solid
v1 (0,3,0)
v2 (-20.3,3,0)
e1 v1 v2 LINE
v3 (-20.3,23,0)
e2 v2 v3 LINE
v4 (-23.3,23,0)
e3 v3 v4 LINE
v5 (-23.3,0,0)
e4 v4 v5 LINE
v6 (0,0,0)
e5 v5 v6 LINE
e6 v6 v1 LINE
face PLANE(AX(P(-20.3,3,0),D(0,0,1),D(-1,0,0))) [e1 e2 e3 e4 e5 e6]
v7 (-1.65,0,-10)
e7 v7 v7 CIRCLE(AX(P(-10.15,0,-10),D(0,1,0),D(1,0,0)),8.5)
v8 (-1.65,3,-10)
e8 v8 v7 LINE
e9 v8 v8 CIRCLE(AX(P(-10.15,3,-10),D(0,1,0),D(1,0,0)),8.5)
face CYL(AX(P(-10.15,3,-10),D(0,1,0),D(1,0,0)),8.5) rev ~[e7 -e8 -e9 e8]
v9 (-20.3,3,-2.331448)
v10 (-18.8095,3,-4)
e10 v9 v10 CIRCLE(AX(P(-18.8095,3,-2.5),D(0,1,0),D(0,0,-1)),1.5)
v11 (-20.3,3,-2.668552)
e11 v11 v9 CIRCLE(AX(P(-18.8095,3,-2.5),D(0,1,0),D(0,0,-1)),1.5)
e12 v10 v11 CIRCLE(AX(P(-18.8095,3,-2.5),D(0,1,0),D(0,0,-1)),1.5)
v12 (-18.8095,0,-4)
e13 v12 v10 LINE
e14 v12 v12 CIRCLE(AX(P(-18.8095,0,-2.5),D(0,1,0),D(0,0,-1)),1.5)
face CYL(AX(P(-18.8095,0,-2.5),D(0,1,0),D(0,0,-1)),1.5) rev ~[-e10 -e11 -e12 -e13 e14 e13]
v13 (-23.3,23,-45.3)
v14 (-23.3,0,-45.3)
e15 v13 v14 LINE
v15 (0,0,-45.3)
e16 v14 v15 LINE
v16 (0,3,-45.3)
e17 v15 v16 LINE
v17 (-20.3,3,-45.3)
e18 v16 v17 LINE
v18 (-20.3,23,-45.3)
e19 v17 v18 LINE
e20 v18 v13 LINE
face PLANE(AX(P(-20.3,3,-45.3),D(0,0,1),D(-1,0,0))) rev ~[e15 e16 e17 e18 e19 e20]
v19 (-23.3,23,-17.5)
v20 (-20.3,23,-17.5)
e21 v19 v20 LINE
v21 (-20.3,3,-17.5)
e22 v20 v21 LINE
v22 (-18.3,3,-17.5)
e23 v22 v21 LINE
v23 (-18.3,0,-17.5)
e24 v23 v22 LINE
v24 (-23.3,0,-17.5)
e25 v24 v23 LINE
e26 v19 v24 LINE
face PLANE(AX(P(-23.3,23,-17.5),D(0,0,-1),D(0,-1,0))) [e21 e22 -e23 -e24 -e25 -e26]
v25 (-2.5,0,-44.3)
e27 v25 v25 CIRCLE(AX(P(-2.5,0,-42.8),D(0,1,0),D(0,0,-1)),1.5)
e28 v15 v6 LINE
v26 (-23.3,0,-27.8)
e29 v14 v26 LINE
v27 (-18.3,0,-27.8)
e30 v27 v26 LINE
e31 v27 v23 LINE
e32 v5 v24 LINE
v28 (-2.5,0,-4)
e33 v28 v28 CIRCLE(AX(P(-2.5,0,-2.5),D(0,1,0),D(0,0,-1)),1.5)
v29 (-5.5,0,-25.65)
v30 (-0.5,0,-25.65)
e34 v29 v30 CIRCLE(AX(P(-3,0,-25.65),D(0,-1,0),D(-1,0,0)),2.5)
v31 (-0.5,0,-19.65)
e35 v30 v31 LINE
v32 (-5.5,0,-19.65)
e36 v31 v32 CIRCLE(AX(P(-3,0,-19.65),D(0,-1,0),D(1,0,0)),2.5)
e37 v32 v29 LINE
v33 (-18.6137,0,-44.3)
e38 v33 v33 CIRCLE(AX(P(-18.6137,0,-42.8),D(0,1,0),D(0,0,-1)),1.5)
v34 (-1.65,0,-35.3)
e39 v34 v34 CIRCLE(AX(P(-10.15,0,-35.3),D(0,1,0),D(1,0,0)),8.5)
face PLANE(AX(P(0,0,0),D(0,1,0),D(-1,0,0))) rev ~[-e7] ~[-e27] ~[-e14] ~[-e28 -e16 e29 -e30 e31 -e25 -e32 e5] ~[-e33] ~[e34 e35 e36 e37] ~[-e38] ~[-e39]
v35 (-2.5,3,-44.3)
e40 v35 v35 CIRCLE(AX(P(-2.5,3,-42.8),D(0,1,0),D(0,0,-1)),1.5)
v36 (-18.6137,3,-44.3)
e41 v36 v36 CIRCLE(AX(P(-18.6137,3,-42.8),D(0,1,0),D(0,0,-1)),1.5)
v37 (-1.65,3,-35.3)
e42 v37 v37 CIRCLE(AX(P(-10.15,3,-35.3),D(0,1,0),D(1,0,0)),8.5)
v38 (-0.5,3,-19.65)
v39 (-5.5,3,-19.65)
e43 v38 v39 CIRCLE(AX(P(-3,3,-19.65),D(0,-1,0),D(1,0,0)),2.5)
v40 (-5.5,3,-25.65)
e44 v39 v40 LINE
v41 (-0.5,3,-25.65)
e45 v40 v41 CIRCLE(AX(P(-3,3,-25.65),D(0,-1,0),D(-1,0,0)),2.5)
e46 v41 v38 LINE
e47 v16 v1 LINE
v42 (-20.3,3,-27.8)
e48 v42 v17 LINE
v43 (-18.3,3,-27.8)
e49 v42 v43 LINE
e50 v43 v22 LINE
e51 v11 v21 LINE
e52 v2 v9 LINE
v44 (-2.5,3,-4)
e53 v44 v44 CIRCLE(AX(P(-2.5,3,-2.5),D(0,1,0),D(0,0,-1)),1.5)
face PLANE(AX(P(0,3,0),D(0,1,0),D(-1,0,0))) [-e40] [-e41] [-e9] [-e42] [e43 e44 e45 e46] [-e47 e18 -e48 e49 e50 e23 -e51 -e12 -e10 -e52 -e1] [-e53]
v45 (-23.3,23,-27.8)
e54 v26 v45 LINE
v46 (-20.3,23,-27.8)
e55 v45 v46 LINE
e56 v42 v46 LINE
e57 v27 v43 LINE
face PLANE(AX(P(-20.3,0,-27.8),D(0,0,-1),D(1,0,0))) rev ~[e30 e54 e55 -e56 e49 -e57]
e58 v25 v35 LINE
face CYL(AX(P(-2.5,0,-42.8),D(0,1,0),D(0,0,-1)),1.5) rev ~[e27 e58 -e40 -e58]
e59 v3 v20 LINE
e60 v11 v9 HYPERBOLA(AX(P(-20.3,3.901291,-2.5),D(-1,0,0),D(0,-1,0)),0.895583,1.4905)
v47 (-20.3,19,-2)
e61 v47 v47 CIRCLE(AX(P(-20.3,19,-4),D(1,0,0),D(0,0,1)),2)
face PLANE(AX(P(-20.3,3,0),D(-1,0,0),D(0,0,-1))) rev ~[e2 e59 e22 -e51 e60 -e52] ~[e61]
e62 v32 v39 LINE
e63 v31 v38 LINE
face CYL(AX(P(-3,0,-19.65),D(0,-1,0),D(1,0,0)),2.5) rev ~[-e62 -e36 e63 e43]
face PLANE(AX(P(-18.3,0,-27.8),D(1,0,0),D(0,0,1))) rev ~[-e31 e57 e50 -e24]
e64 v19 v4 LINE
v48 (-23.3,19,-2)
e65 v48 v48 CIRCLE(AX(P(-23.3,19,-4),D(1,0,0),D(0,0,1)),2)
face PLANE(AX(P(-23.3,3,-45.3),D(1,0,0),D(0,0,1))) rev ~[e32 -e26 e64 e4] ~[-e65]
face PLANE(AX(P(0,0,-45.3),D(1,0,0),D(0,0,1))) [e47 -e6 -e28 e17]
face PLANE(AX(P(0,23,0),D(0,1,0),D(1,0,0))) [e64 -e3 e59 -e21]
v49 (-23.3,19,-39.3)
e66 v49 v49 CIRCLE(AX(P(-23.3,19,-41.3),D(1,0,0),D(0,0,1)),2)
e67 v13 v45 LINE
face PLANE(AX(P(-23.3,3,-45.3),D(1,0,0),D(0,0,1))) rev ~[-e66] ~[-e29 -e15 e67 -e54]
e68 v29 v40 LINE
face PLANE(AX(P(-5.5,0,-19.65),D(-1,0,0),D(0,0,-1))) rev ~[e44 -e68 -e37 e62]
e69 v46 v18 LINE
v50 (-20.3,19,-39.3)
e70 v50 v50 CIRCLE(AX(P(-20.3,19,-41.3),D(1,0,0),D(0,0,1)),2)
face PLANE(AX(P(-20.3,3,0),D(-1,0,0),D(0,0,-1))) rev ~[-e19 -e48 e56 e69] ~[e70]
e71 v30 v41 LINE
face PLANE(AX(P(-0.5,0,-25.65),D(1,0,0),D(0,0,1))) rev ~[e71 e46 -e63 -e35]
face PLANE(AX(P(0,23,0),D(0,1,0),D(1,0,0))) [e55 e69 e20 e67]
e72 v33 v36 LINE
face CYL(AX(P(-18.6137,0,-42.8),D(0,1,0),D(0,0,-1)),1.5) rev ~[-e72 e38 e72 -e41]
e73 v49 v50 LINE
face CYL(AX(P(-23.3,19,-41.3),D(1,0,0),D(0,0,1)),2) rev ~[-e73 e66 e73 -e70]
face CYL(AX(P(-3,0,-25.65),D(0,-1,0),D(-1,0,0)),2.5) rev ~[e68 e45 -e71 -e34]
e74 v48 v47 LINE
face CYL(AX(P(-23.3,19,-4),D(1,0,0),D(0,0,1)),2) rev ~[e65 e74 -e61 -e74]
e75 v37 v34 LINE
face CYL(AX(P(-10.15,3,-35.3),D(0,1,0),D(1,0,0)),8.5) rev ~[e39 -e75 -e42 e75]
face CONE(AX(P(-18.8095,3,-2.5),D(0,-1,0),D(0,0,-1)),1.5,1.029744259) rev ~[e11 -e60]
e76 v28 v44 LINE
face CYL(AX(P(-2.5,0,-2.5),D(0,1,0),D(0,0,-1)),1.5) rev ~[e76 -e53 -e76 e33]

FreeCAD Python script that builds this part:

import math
import FreeCAD as App
import Part
import Sketcher
from FreeCAD import Vector


def add_polygon(sketch, points):
    """Adds a closed chain of lines whose ends are joined by coincident constraints."""
    first, n = sketch.GeometryCount, len(points)
    for a, b in zip(points, points[1:] + points[:1]):
        sketch.addGeometry(Part.LineSegment(App.Vector(*a, 0), App.Vector(*b, 0)), False)
    for i in range(n):
        sketch.addConstraint(Sketcher.Constraint("Coincident", first + i, 2, first + (i + 1) % n, 1))

doc = App.newDocument("Part")
body = doc.addObject("PartDesign::Body", "Body")

# Sketch on XZ plane
sketch1 = doc.addObject("Sketcher::SketchObject", "Sketch")
body.addObject(sketch1)
sketch1.AttachmentSupport = (doc.XZ_Plane, [""])
sketch1.MapMode = "FlatFace"
add_polygon(sketch1, [(-20, 0), (0, 0), (0, -45), (-20, -45)])  # lines 0-3
sketch1.addConstraint([
    Sketcher.Constraint("Horizontal", 0),
    Sketcher.Constraint("Vertical", 1),
    Sketcher.Constraint("Horizontal", 2),
    Sketcher.Constraint("Vertical", 3),
    Sketcher.Constraint("Coincident", 0, 2, -1, 1),
    Sketcher.Constraint("DistanceX", 0, 1, 0, 2, 20.3),
    Sketcher.Constraint("DistanceY", 1, 2, 1, 1, 45.3),
])
pad1 = doc.addObject("PartDesign::Pad", "Pad")
body.addObject(pad1)
pad1.Profile = sketch1
pad1.Length = 3
pad1.Reversed = True

# Sketch on XZ plane
sketch2 = doc.addObject("Sketcher::SketchObject", "Sketch001")
body.addObject(sketch2)
sketch2.AttachmentSupport = (doc.XZ_Plane, [""])
sketch2.MapMode = "FlatFace"
sketch2.AttachmentOffset = App.Placement(Vector(0, 0, -3), App.Rotation())
sketch2.addGeometry([
    Part.Circle(Vector(-10, -10, 0), Vector(0, 0, 1), 8),
    Part.Circle(Vector(-10, -35, 0), Vector(0, 0, 1), 8),
], False)
sketch2.addConstraint([
    Sketcher.Constraint("Equal", 0, 1),
    Sketcher.Constraint("Vertical", 0, 3, 1, 3),
    Sketcher.Constraint("Diameter", 0, 17.0),
    Sketcher.Constraint("DistanceY", 0, 3, -1, 1, 10.0),
    Sketcher.Constraint("DistanceX", 0, 3, -1, 1, 10.15),
    Sketcher.Constraint("DistanceY", 1, 3, -1, 1, 35.3),
])
pocket1 = doc.addObject("PartDesign::Pocket", "Pocket")
body.addObject(pocket1)
pocket1.Profile = sketch2
pocket1.Length = 3
pocket1.Reversed = True

# Sketch on YZ plane
sketch3 = doc.addObject("Sketcher::SketchObject", "Sketch002")
body.addObject(sketch3)
sketch3.AttachmentSupport = (doc.YZ_Plane, [""])
sketch3.MapMode = "FlatFace"
sketch3.AttachmentOffset = App.Placement(Vector(0, 0, -20.3), App.Rotation())
add_polygon(sketch3, [(0, 0), (3, 0), (3, -17.5), (0, -17.5)])  # lines 0-3
add_polygon(sketch3, [(0, -27.8), (3, -27.8), (3, -45.3), (0, -45.3)])  # lines 4-7
sketch3.addConstraint([
    Sketcher.Constraint("Horizontal", 0),
    Sketcher.Constraint("Vertical", 1),
    Sketcher.Constraint("Horizontal", 2),
    Sketcher.Constraint("Vertical", 3),
    Sketcher.Constraint("Horizontal", 4),
    Sketcher.Constraint("Vertical", 5),
    Sketcher.Constraint("Horizontal", 6),
    Sketcher.Constraint("Vertical", 7),
    Sketcher.Constraint("Coincident", 3, 2, -1, 1),
    Sketcher.Constraint("PointOnObject", 6, 2, -2),
    Sketcher.Constraint("Vertical", 1, 2, 4, 2),
    Sketcher.Constraint("Equal", 3, 5),
    Sketcher.Constraint("DistanceY", 1, 2, 1, 1, 17.5),
    Sketcher.Constraint("DistanceX", 0, 1, 0, 2, 3.0),
    Sketcher.Constraint("DistanceY", 4, 2, -1, 1, 27.8),
])
pad2 = doc.addObject("PartDesign::Pad", "Pad001")
body.addObject(pad2)
pad2.Profile = sketch3
pad2.Length = 3
pad2.Reversed = True

# Sketch on XZ plane
sketch4 = doc.addObject("Sketcher::SketchObject", "Sketch003")
body.addObject(sketch4)
sketch4.AttachmentSupport = (doc.XZ_Plane, [""])
sketch4.MapMode = "FlatFace"
sketch4.AttachmentOffset = App.Placement(Vector(0, 0, -3), App.Rotation())
add_polygon(sketch4, [(-23.3, 0), (-20.3, 0), (-20.3, -45.3), (-23.3, -45.3)])  # lines 0-3
sketch4.addConstraint([
    Sketcher.Constraint("Horizontal", 0),
    Sketcher.Constraint("Vertical", 1),
    Sketcher.Constraint("Horizontal", 2),
    Sketcher.Constraint("Vertical", 3),
    Sketcher.Constraint("PointOnObject", 0, 2, -1),
    Sketcher.Constraint("DistanceX", 0, 1, 0, 2, 3.0),
    Sketcher.Constraint("DistanceY", 1, 2, 1, 1, 45.3),
    Sketcher.Constraint("DistanceX", 0, 2, -1, 1, 20.3),
])
pad3 = doc.addObject("PartDesign::Pad", "Pad002")
body.addObject(pad3)
pad3.Profile = sketch4
pad3.Length = 20
pad3.Reversed = True

# Sketch on YZ plane
sketch5 = doc.addObject("Sketcher::SketchObject", "Sketch004")
body.addObject(sketch5)
sketch5.AttachmentSupport = (doc.YZ_Plane, [""])
sketch5.MapMode = "FlatFace"
sketch5.AttachmentOffset = App.Placement(Vector(0, 0, -23.3), App.Rotation())
add_polygon(sketch5, [(3, -28), (3, -18), (23, -18), (23, -28)])  # lines 0-3
sketch5.addConstraint([
    Sketcher.Constraint("Vertical", 0),
    Sketcher.Constraint("Horizontal", 1),
    Sketcher.Constraint("Vertical", 2),
    Sketcher.Constraint("Horizontal", 3),
    Sketcher.Constraint("DistanceX", 1, 1, 1, 2, 20.0),
    Sketcher.Constraint("DistanceY", 0, 1, 0, 2, 10.3),
    Sketcher.Constraint("DistanceX", -1, 1, 0, 2, 3.0),
    Sketcher.Constraint("DistanceY", 0, 2, -1, 1, 17.5),
])
pocket2 = doc.addObject("PartDesign::Pocket", "Pocket001")
body.addObject(pocket2)
pocket2.Profile = sketch5
pocket2.Length = 3
pocket2.Reversed = True

# Sketch on XZ plane
sketch6 = doc.addObject("Sketcher::SketchObject", "Sketch005")
body.addObject(sketch6)
sketch6.AttachmentSupport = (doc.XZ_Plane, [""])
sketch6.MapMode = "FlatFace"
sketch6.addGeometry([
    Part.ArcOfCircle(Part.Circle(Vector(-3, -25.6, 0), Vector(0, 0, 1), 2.5), math.radians(180), math.radians(360)),
    Part.LineSegment(Vector(-0.5, -25.6, 0), Vector(-0.5, -19.6, 0)),
    Part.ArcOfCircle(Part.Circle(Vector(-3, -19.6, 0), Vector(0, 0, 1), 2.5), math.radians(0), math.radians(180)),
    Part.LineSegment(Vector(-5.5, -19.6, 0), Vector(-5.5, -25.6, 0)),
], False)
sketch6.addConstraint([
    Sketcher.Constraint("Tangent", 0, 2, 1, 1),
    Sketcher.Constraint("Tangent", 1, 2, 2, 1),
    Sketcher.Constraint("Tangent", 2, 2, 3, 1),
    Sketcher.Constraint("Tangent", 3, 2, 0, 1),
    Sketcher.Constraint("Vertical", 1),
    Sketcher.Constraint("Vertical", 3),
    Sketcher.Constraint("Radius", 0, 2.5),
    Sketcher.Constraint("DistanceX", 0, 2, -1, 1, 0.5),
    Sketcher.Constraint("DistanceY", 1, 1, 1, 2, 6.0),
    Sketcher.Constraint("DistanceY", 0, 3, -1, 1, 25.65),
])
pocket3 = doc.addObject("PartDesign::Pocket", "Pocket002")
body.addObject(pocket3)
pocket3.Profile = sketch6
pocket3.Length = 3

# Sketch on XZ plane
sketch7 = doc.addObject("Sketcher::SketchObject", "Sketch006")
body.addObject(sketch7)
sketch7.AttachmentSupport = (doc.XZ_Plane, [""])
sketch7.MapMode = "FlatFace"
add_polygon(sketch7, [(-20.3, -17.5), (-20.3, -27.8), (-18.3, -27.8), (-18.3, -17.5)])  # lines 0-3
sketch7.addConstraint([
    Sketcher.Constraint("Vertical", 0),
    Sketcher.Constraint("Horizontal", 1),
    Sketcher.Constraint("Vertical", 2),
    Sketcher.Constraint("Horizontal", 3),
    Sketcher.Constraint("DistanceX", 1, 1, 1, 2, 2.0),
    Sketcher.Constraint("DistanceY", 0, 2, 0, 1, 10.3),
    Sketcher.Constraint("DistanceX", 0, 2, -1, 1, 20.3),
    Sketcher.Constraint("DistanceY", 0, 2, -1, 1, 27.8),
])
pocket4 = doc.addObject("PartDesign::Pocket", "Pocket003")
body.addObject(pocket4)
pocket4.Profile = sketch7
pocket4.Length = 3

# Sketch on XZ plane
sketch8 = doc.addObject("Sketcher::SketchObject", "Sketch007")
body.addObject(sketch8)
sketch8.AttachmentSupport = (doc.XZ_Plane, [""])
sketch8.MapMode = "FlatFace"
sketch8.addGeometry([
    Part.Circle(Vector(-2.5, -42.8, 0), Vector(0, 0, 1), 1.5),
    Part.Circle(Vector(-2.5, -2.5, 0), Vector(0, 0, 1), 1.5),
    Part.Circle(Vector(-18.8, -2.5, 0), Vector(0, 0, 1), 1.5),
    Part.Circle(Vector(-18.6, -42.8, 0), Vector(0, 0, 1), 1.5),
], False)
sketch8.addConstraint([
    Sketcher.Constraint("Equal", 0, 1),
    Sketcher.Constraint("Equal", 1, 2),
    Sketcher.Constraint("Equal", 2, 3),
    Sketcher.Constraint("Horizontal", 1, 3, 2, 3),
    Sketcher.Constraint("Horizontal", 0, 3, 3, 3),
    Sketcher.Constraint("Vertical", 0, 3, 1, 3),
    Sketcher.Constraint("Diameter", 0, 3.0),
    Sketcher.Constraint("DistanceX", 0, 3, -1, 1, 2.5),
    Sketcher.Constraint("DistanceY", 0, 3, -1, 1, 42.8),
    Sketcher.Constraint("DistanceY", 1, 3, -1, 1, 2.5),
    Sketcher.Constraint("DistanceX", 2, 3, -1, 1, 18.8095),
    Sketcher.Constraint("DistanceX", 3, 3, -1, 1, 18.6137),
])
doc.recompute()
hole = doc.addObject("PartDesign::Hole", "Hole")
body.addObject(hole)
hole.Profile = sketch8
hole.ThreadType = "None"
hole.Diameter = 3
hole.DepthType = "Dimension"
hole.Depth = 3
hole.DrillPoint = "Angled"
hole.DrillPointAngle = 118

# Sketch on YZ plane
sketch9 = doc.addObject("Sketcher::SketchObject", "Sketch008")
body.addObject(sketch9)
sketch9.AttachmentSupport = (doc.YZ_Plane, [""])
sketch9.MapMode = "FlatFace"
sketch9.AttachmentOffset = App.Placement(Vector(0, 0, -23.3), App.Rotation())
sketch9.addGeometry([
    Part.Circle(Vector(19, -41.3, 0), Vector(0, 0, 1), 2),
    Part.Circle(Vector(19, -4, 0), Vector(0, 0, 1), 2),
], False)
sketch9.addConstraint([
    Sketcher.Constraint("Equal", 0, 1),
    Sketcher.Constraint("Vertical", 0, 3, 1, 3),
    Sketcher.Constraint("Diameter", 0, 4.0),
    Sketcher.Constraint("DistanceX", -1, 1, 0, 3, 19.0),
    Sketcher.Constraint("DistanceY", 1, 3, -1, 1, 4.0),
    Sketcher.Constraint("DistanceY", 0, 3, -1, 1, 41.3),
])
doc.recompute()
hole2 = doc.addObject("PartDesign::Hole", "Hole001")
body.addObject(hole2)
hole2.Profile = sketch9
hole2.ThreadType = "None"
hole2.Diameter = 4
hole2.DepthType = "Dimension"
hole2.Depth = 3
hole2.DrillPoint = "Angled"
hole2.DrillPointAngle = 118
hole2.Reversed = True

doc.recompute()
